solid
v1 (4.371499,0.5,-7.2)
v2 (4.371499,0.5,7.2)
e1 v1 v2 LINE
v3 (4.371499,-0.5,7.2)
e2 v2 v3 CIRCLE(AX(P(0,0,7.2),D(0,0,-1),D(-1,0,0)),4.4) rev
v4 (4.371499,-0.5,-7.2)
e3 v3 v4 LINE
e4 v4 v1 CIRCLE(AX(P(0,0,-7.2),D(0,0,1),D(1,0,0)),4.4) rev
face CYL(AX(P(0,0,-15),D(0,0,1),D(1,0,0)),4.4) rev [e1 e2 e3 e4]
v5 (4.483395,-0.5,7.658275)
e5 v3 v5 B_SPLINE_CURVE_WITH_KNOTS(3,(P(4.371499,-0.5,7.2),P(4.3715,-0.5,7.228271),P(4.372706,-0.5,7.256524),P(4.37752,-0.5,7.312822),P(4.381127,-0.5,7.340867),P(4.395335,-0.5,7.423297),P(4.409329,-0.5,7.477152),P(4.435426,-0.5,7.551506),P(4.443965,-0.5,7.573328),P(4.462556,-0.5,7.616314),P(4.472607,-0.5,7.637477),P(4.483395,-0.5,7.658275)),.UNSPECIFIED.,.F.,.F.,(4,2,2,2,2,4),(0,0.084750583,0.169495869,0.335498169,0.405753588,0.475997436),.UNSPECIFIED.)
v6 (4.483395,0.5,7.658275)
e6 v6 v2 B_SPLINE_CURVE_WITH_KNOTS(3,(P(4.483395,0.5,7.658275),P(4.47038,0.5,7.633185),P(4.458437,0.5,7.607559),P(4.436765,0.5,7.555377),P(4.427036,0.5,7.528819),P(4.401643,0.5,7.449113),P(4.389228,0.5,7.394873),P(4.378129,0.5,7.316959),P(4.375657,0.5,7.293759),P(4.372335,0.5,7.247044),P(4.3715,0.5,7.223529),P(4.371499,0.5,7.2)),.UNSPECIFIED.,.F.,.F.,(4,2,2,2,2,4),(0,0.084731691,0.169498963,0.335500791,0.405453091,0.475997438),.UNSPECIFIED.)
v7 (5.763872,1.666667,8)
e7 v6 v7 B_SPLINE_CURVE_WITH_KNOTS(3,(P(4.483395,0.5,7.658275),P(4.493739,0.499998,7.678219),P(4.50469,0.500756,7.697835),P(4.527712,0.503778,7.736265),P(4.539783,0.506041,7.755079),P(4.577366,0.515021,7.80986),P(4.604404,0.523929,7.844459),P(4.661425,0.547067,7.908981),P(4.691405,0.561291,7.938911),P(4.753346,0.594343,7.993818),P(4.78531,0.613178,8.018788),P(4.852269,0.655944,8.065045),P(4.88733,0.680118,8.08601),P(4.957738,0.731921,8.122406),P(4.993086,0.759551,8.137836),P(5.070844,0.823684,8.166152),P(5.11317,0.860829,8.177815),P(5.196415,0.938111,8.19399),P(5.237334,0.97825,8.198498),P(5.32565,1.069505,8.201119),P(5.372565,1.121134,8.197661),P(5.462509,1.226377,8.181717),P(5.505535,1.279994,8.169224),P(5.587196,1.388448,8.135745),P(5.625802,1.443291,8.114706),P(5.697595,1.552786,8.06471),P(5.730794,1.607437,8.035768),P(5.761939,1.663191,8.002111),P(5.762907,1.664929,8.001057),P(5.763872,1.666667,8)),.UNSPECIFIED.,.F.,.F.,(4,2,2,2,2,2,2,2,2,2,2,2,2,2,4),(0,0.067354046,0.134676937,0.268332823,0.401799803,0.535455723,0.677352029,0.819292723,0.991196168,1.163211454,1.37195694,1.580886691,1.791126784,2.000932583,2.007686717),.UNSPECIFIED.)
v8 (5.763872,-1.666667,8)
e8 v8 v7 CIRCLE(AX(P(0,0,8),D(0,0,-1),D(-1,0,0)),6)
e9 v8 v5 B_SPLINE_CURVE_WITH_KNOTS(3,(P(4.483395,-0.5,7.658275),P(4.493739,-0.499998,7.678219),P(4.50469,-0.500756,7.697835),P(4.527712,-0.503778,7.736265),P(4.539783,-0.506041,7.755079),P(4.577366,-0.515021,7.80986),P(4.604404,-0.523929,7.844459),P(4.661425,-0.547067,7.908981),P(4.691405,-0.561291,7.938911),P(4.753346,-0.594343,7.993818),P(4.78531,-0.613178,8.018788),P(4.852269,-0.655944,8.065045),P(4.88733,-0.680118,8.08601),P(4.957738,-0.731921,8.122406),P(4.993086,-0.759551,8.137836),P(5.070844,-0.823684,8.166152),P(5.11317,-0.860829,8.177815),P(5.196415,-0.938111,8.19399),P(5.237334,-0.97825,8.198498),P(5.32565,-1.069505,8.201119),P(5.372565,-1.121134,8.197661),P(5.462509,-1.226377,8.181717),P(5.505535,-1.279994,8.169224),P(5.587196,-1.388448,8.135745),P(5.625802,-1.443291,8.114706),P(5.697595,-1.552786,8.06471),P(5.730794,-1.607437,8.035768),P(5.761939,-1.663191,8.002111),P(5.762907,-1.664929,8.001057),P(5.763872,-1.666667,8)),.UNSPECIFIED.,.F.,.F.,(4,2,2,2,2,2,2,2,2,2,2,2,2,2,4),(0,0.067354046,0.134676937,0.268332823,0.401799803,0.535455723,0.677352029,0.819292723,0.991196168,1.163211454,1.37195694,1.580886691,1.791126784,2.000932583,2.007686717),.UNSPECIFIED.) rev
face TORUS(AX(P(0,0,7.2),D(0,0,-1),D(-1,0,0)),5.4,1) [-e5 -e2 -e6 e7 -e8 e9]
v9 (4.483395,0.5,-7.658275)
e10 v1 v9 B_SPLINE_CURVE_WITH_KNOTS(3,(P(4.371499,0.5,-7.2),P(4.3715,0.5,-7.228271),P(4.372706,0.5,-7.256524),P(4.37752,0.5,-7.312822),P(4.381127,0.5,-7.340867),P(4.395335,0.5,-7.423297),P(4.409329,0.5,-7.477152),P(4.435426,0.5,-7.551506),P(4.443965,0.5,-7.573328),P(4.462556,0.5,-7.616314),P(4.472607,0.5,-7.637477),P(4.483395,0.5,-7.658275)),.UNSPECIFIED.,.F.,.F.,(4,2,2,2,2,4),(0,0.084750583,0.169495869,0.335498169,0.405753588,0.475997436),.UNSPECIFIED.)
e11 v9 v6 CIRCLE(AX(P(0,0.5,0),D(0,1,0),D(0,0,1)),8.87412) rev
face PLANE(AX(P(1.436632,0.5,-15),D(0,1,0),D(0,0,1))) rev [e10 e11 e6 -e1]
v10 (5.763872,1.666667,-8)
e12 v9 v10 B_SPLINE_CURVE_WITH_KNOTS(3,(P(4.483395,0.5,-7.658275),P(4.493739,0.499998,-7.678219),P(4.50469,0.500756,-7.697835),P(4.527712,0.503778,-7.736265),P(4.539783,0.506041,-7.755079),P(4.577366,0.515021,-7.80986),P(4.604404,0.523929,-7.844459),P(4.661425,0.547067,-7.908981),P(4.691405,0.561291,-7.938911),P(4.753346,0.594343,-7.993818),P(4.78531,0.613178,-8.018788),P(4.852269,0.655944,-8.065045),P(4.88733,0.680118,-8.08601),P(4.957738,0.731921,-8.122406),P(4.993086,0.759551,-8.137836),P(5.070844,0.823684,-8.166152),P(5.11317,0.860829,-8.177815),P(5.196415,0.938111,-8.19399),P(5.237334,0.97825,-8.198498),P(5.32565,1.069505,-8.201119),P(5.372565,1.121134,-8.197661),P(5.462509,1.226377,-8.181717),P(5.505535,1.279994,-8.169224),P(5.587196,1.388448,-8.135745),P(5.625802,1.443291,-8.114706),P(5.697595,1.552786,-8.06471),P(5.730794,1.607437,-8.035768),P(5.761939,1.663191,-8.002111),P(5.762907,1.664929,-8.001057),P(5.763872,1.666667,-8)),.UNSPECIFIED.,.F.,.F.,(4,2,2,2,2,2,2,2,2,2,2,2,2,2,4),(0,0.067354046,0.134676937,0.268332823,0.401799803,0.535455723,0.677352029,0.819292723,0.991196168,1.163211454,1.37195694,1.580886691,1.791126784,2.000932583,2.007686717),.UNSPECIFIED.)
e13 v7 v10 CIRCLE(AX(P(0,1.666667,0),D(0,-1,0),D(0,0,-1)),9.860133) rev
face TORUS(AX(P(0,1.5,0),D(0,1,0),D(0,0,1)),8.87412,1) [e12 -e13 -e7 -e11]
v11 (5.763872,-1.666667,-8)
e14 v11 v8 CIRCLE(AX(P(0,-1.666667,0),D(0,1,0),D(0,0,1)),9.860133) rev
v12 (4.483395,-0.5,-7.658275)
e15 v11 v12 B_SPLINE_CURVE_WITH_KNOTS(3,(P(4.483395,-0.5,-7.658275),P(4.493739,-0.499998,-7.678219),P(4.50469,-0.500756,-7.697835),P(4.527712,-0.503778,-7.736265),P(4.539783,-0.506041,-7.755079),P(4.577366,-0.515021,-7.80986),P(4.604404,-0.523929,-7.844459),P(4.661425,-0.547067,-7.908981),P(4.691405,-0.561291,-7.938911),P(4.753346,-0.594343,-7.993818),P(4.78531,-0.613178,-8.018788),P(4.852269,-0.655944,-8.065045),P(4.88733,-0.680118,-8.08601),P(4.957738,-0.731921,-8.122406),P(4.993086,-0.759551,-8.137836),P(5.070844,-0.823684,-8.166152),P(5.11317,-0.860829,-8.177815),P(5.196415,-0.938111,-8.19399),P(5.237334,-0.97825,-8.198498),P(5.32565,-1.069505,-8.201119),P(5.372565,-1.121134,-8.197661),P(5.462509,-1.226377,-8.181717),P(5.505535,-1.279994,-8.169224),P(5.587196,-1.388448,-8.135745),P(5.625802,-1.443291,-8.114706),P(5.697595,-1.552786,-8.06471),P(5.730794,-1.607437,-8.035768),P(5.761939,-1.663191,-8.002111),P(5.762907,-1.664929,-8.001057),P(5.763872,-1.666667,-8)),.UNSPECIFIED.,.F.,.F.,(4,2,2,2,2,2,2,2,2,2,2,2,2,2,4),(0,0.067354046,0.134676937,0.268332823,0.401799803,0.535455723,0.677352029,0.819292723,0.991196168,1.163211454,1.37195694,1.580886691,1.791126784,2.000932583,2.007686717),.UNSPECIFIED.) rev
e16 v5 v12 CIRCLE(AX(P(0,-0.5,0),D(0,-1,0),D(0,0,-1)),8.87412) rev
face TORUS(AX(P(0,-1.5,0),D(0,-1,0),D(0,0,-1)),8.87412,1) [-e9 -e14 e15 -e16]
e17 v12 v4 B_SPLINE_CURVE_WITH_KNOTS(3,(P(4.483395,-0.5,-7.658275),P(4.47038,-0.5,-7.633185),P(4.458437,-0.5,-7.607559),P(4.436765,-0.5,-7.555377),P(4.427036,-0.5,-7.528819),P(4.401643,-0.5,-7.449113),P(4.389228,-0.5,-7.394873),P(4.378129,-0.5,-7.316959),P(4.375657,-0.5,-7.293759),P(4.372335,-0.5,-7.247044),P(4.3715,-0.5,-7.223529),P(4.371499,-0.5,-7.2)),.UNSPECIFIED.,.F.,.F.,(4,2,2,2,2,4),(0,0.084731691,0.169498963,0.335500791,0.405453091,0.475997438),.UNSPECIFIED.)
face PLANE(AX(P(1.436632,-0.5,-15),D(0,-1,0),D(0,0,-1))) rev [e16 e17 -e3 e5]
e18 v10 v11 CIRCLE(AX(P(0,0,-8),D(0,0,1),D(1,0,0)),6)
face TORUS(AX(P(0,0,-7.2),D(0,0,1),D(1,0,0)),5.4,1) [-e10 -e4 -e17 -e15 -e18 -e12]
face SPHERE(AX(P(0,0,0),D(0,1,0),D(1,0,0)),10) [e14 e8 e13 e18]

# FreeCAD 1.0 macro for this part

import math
import FreeCAD as App
import Part
import Sketcher

V = App.Vector
Q = App.Units.Quantity


def edges_at(feature, points):
    """Names of the edges that pass closest to the given points."""
    edges = feature.Shape.Edges
    near = lambda p: min(range(len(edges)), key=lambda i: edges[i].distToShape(Part.Vertex(*p))[0])
    return sorted({f"Edge{near(p) + 1}" for p in points})


def add_polygon(sketch, points):
    """Adds a closed chain of lines whose ends are joined by coincident constraints."""
    first, n = sketch.GeometryCount, len(points)
    for a, b in zip(points, points[1:] + points[:1]):
        sketch.addGeometry(Part.LineSegment(App.Vector(*a, 0), App.Vector(*b, 0)), False)
    for i in range(n):
        sketch.addConstraint(Sketcher.Constraint("Coincident", first + i, 2, first + (i + 1) % n, 1))

doc = App.newDocument("Part")
body = doc.addObject("PartDesign::Body", "Body")

sketch1 = body.newObject("Sketcher::SketchObject", "Sketch")
sketch1.AttachmentSupport = (doc.getObject("XY_Plane"), [""])
sketch1.MapMode = "FlatFace"
sketch1.addGeometry([
    Part.LineSegment(V(0, -10, 0), V(0, 10, 0)),
    Part.ArcOfCircle(Part.Circle(V(0, 0, 0), V(0, 0, 1), 10), math.radians(90), math.radians(270)),
], False)
sketch1.addConstraint([
    Sketcher.Constraint("Coincident", 0, 1, 1, 2),
    Sketcher.Constraint("Coincident", 1, 1, 0, 2),
    Sketcher.Constraint("Vertical", 0),
    Sketcher.Constraint("Coincident", 1, 3, -1, 1),
    Sketcher.Constraint("PointOnObject", 0, 1, -2),
    Sketcher.Constraint("Radius", 1, Q("10 mm")),
])
revolution = body.newObject("PartDesign::Revolution", "Revolution")
revolution.Profile = sketch1
revolution.ReferenceAxis = (sketch1, ["V_Axis"])
revolution.Angle = 360

sketch2 = body.newObject("Sketcher::SketchObject", "Sketch001")
sketch2.AttachmentSupport = (doc.getObject("XY_Plane"), [""])
sketch2.MapMode = "FlatFace"
sketch2.addGeometry(Part.Circle(V(0, 0, 0), V(0, 0, 1), 4.4), False)
sketch2.addConstraint([
    Sketcher.Constraint("Coincident", 0, 3, -1, 1),
    Sketcher.Constraint("Diameter", 0, Q("8.8 mm")),
])
pocket1 = body.newObject("PartDesign::Pocket", "Pocket")
pocket1.Profile = sketch2
pocket1.Length = 30
pocket1.Midplane = True

sketch3 = body.newObject("Sketcher::SketchObject", "Sketch002")
sketch3.AttachmentSupport = (doc.getObject("XY_Plane"), [""])
sketch3.MapMode = "FlatFace"
add_polygon(sketch3, [(1.436632, 0.5), (1.436632, -0.5), (11.858273, -0.5), (11.858273, 0.5)])
sketch3.addConstraint([
    Sketcher.Constraint("Vertical", 0),
    Sketcher.Constraint("Horizontal", 1),
    Sketcher.Constraint("Vertical", 2),
    Sketcher.Constraint("Horizontal", 3),
    Sketcher.Constraint("DistanceY", 0, 2, 0, 1, Q("1 mm")),
    Sketcher.Constraint("DistanceY", 0, 2, -1, 1, Q("0.5 mm")),
    Sketcher.Constraint("DistanceX", 1, 1, 1, 2, Q("10.421641 mm")),
    Sketcher.Constraint("DistanceX", -1, 1, 0, 2, Q("1.436632 mm")),
])
pocket2 = body.newObject("PartDesign::Pocket", "Pocket001")
pocket2.Profile = sketch3
pocket2.Length = 30
pocket2.Midplane = True
doc.recompute()

fillet = body.newObject("PartDesign::Fillet", "Fillet")
fillet.Base = (pocket2, edges_at(pocket2, [
    (-0.25, -4.393, 8.98),
    (9.987, 0.5, 0),
    (9.987, -0.5, 0),
    (-0.25, -4.393, -8.98),
]))
fillet.Radius = 1

doc.recompute()
